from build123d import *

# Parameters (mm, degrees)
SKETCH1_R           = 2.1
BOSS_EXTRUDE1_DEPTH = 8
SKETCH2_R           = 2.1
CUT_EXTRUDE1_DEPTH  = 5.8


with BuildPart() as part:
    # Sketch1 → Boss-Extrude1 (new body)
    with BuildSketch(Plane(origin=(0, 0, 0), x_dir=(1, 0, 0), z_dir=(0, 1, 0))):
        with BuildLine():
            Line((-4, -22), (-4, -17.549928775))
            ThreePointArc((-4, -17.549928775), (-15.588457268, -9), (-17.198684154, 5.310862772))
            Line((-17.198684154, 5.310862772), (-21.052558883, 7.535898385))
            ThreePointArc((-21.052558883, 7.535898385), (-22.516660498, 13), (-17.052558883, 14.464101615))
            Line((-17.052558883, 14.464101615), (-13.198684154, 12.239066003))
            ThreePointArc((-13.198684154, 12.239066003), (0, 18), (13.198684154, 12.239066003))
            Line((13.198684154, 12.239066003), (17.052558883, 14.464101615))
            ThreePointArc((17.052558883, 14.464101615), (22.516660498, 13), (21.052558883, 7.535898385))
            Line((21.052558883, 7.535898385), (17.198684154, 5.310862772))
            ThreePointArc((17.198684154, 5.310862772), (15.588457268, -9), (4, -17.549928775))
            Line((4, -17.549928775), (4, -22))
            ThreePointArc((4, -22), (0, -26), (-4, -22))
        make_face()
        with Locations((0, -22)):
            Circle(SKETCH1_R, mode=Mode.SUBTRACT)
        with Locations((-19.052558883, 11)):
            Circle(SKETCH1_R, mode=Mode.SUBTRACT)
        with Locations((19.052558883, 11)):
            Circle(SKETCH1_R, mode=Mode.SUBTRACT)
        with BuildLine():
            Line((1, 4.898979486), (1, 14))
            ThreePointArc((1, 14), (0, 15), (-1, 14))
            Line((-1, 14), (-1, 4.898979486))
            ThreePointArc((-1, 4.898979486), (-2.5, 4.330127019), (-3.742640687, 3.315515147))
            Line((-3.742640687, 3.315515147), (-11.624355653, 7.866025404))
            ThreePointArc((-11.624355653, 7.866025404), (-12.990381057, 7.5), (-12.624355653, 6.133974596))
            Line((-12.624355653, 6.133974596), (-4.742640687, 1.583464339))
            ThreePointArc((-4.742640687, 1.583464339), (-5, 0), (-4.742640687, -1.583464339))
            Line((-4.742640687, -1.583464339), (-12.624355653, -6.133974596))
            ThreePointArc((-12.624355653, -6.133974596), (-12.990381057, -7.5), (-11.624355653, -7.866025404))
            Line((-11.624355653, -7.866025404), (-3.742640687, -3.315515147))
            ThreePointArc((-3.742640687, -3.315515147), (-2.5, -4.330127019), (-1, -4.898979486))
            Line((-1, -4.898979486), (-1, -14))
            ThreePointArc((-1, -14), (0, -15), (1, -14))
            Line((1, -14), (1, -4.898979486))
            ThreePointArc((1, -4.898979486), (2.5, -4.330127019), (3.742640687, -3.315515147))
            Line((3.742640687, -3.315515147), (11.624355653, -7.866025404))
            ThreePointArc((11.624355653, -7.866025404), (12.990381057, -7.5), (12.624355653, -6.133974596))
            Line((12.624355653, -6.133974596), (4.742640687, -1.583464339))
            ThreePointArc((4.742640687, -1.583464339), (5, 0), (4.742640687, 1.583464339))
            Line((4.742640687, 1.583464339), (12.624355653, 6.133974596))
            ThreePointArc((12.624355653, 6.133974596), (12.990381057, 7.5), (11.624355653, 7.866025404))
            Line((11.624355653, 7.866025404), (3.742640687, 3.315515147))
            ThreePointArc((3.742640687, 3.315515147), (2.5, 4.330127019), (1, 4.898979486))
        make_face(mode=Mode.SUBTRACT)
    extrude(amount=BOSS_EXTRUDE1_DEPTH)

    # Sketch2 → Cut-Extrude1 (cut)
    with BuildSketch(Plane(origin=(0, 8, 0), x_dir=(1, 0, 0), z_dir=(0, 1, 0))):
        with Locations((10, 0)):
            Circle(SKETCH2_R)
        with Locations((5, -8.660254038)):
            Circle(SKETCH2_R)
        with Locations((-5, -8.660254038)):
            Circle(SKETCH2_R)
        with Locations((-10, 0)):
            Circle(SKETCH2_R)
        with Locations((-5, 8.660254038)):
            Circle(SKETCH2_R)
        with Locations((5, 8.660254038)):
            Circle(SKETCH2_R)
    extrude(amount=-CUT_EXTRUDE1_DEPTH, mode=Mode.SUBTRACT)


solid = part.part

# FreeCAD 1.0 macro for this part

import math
import FreeCAD as App
import Part
import Sketcher

V = App.Vector
Q = App.Units.Quantity

doc = App.newDocument("Part")
body = doc.addObject("PartDesign::Body", "Body")

# Sketch on XZ plane
sketch1 = body.newObject("Sketcher::SketchObject", "Sketch")
sketch1.AttachmentSupport = (doc.getObject("XZ_Plane"), [""])
sketch1.MapMode = "FlatFace"
sketch1.addGeometry(Part.LineSegment(V(-4, 17.5, 0), V(-4, 22, 0)), False)
sketch1.addGeometry(Part.ArcOfCircle(Part.Circle(V(0, 22, 0), V(0, 0, 1), 4), math.radians(0), math.radians(180)), False)
sketch1.addGeometry(Part.LineSegment(V(4, 22, 0), V(4, 17.5, 0)), False)
sketch1.addGeometry(Part.ArcOfCircle(Part.Circle(V(0, 0, 0), V(0, 0, 1), 18), math.radians(-17), math.radians(77)), False)
sketch1.addGeometry(Part.LineSegment(V(17.2, -5.3, 0), V(21.1, -7.5, 0)), False)
sketch1.addGeometry(Part.ArcOfCircle(Part.Circle(V(19.1, -11, 0), V(0, 0, 1), 4), math.radians(-120), math.radians(60)), False)
sketch1.addGeometry(Part.LineSegment(V(17.1, -14.5, 0), V(13.2, -12.2, 0)), False)
sketch1.addGeometry(Part.ArcOfCircle(Part.Circle(V(0, 0, 0), V(0, 0, 1), 18), math.radians(-137), math.radians(-43)), False)
sketch1.addGeometry(Part.LineSegment(V(-13.2, -12.2, 0), V(-17.1, -14.5, 0)), False)
sketch1.addGeometry(Part.ArcOfCircle(Part.Circle(V(-19.1, -11, 0), V(0, 0, 1), 4), math.radians(120), math.radians(300)), False)
sketch1.addGeometry(Part.LineSegment(V(-21.1, -7.5, 0), V(-17.2, -5.3, 0)), False)
sketch1.addGeometry(Part.ArcOfCircle(Part.Circle(V(0, 0, 0), V(0, 0, 1), 18), math.radians(103), math.radians(197)), False)
sketch1.addGeometry(Part.Circle(V(0, 22, 0), V(0, 0, 1), 2.1), False)
sketch1.addGeometry(Part.Circle(V(19.1, -11, 0), V(0, 0, 1), 2.1), False)
sketch1.addGeometry(Part.ArcOfCircle(Part.Circle(V(0, 0, 0), V(0, 0, 1), 5), math.radians(-78), math.radians(-42)), False)
sketch1.addGeometry(Part.LineSegment(V(3.7, -3.3, 0), V(11.6, -7.9, 0)), False)
sketch1.addGeometry(Part.ArcOfCircle(Part.Circle(V(12.1, -7, 0), V(0, 0, 1), 1), math.radians(-120), math.radians(60)), False)
sketch1.addGeometry(Part.LineSegment(V(12.6, -6.1, 0), V(4.7, -1.6, 0)), False)
sketch1.addGeometry(Part.ArcOfCircle(Part.Circle(V(0, 0, 0), V(0, 0, 1), 5), math.radians(-18), math.radians(18)), False)
sketch1.addGeometry(Part.LineSegment(V(4.7, 1.6, 0), V(12.6, 6.1, 0)), False)
sketch1.addGeometry(Part.ArcOfCircle(Part.Circle(V(12.1, 7, 0), V(0, 0, 1), 1), math.radians(-60), math.radians(120)), False)
sketch1.addGeometry(Part.LineSegment(V(11.6, 7.9, 0), V(3.7, 3.3, 0)), False)
sketch1.addGeometry(Part.ArcOfCircle(Part.Circle(V(0, 0, 0), V(0, 0, 1), 5), math.radians(42), math.radians(78)), False)
sketch1.addGeometry(Part.LineSegment(V(1, 4.9, 0), V(1, 14, 0)), False)
sketch1.addGeometry(Part.ArcOfCircle(Part.Circle(V(0, 14, 0), V(0, 0, 1), 1), math.radians(0), math.radians(180)), False)
sketch1.addGeometry(Part.LineSegment(V(-1, 14, 0), V(-1, 4.9, 0)), False)
sketch1.addGeometry(Part.ArcOfCircle(Part.Circle(V(0, 0, 0), V(0, 0, 1), 5), math.radians(102), math.radians(138)), False)
sketch1.addGeometry(Part.LineSegment(V(-3.7, 3.3, 0), V(-11.6, 7.9, 0)), False)
sketch1.addGeometry(Part.ArcOfCircle(Part.Circle(V(-12.1, 7, 0), V(0, 0, 1), 1), math.radians(60), math.radians(240)), False)
sketch1.addGeometry(Part.LineSegment(V(-12.6, 6.1, 0), V(-4.7, 1.6, 0)), False)
sketch1.addGeometry(Part.ArcOfCircle(Part.Circle(V(0, 0, 0), V(0, 0, 1), 5), math.radians(162), math.radians(198)), False)
sketch1.addGeometry(Part.LineSegment(V(-4.7, -1.6, 0), V(-12.6, -6.1, 0)), False)
sketch1.addGeometry(Part.ArcOfCircle(Part.Circle(V(-12.1, -7, 0), V(0, 0, 1), 1), math.radians(120), math.radians(300)), False)
sketch1.addGeometry(Part.LineSegment(V(-11.6, -7.9, 0), V(-3.7, -3.3, 0)), False)
sketch1.addGeometry(Part.ArcOfCircle(Part.Circle(V(0, 0, 0), V(0, 0, 1), 5), math.radians(-138), math.radians(-102)), False)
sketch1.addGeometry(Part.LineSegment(V(-1, -4.9, 0), V(-1, -14, 0)), False)
sketch1.addGeometry(Part.ArcOfCircle(Part.Circle(V(0, -14, 0), V(0, 0, 1), 1), math.radians(180), math.radians(360)), False)
sketch1.addGeometry(Part.LineSegment(V(1, -14, 0), V(1, -4.9, 0)), False)
sketch1.addGeometry(Part.Circle(V(-19.1, -11, 0), V(0, 0, 1), 2.1), False)
sketch1.addConstraint(Sketcher.Constraint("Tangent", 0, 2, 1, 2))
sketch1.addConstraint(Sketcher.Constraint("Tangent", 1, 1, 2, 1))
sketch1.addConstraint(Sketcher.Constraint("Coincident", 2, 2, 3, 2))
sketch1.addConstraint(Sketcher.Constraint("Coincident", 3, 1, 4, 1))
sketch1.addConstraint(Sketcher.Constraint("Tangent", 4, 2, 5, 2))
sketch1.addConstraint(Sketcher.Constraint("Tangent", 5, 1, 6, 1))
sketch1.addConstraint(Sketcher.Constraint("Coincident", 6, 2, 7, 2))
sketch1.addConstraint(Sketcher.Constraint("Coincident", 7, 1, 8, 1))
sketch1.addConstraint(Sketcher.Constraint("Tangent", 8, 2, 9, 2))
sketch1.addConstraint(Sketcher.Constraint("Tangent", 9, 1, 10, 1))
sketch1.addConstraint(Sketcher.Constraint("Coincident", 10, 2, 11, 2))
sketch1.addConstraint(Sketcher.Constraint("Coincident", 11, 1, 0, 1))
sketch1.addConstraint(Sketcher.Constraint("Coincident", 14, 2, 15, 1))
sketch1.addConstraint(Sketcher.Constraint("Tangent", 15, 2, 16, 1))
sketch1.addConstraint(Sketcher.Constraint("Tangent", 16, 2, 17, 1))
sketch1.addConstraint(Sketcher.Constraint("Coincident", 17, 2, 18, 1))
sketch1.addConstraint(Sketcher.Constraint("Coincident", 18, 2, 19, 1))
sketch1.addConstraint(Sketcher.Constraint("Tangent", 19, 2, 20, 1))
sketch1.addConstraint(Sketcher.Constraint("Tangent", 20, 2, 21, 1))
sketch1.addConstraint(Sketcher.Constraint("Coincident", 21, 2, 22, 1))
sketch1.addConstraint(Sketcher.Constraint("Coincident", 22, 2, 23, 1))
sketch1.addConstraint(Sketcher.Constraint("Tangent", 23, 2, 24, 1))
sketch1.addConstraint(Sketcher.Constraint("Tangent", 24, 2, 25, 1))
sketch1.addConstraint(Sketcher.Constraint("Coincident", 25, 2, 26, 1))
sketch1.addConstraint(Sketcher.Constraint("Coincident", 26, 2, 27, 1))
sketch1.addConstraint(Sketcher.Constraint("Tangent", 27, 2, 28, 1))
sketch1.addConstraint(Sketcher.Constraint("Tangent", 28, 2, 29, 1))
sketch1.addConstraint(Sketcher.Constraint("Coincident", 29, 2, 30, 1))
sketch1.addConstraint(Sketcher.Constraint("Coincident", 30, 2, 31, 1))
sketch1.addConstraint(Sketcher.Constraint("Tangent", 31, 2, 32, 1))
sketch1.addConstraint(Sketcher.Constraint("Tangent", 32, 2, 33, 1))
sketch1.addConstraint(Sketcher.Constraint("Coincident", 33, 2, 34, 1))
sketch1.addConstraint(Sketcher.Constraint("Coincident", 34, 2, 35, 1))
sketch1.addConstraint(Sketcher.Constraint("Tangent", 35, 2, 36, 1))
sketch1.addConstraint(Sketcher.Constraint("Tangent", 36, 2, 37, 1))
sketch1.addConstraint(Sketcher.Constraint("Coincident", 37, 2, 14, 1))
sketch1.addConstraint(Sketcher.Constraint("Vertical", 0))
sketch1.addConstraint(Sketcher.Constraint("Vertical", 2))
sketch1.addConstraint(Sketcher.Constraint("Vertical", 23))
sketch1.addConstraint(Sketcher.Constraint("Vertical", 25))
sketch1.addConstraint(Sketcher.Constraint("Vertical", 35))
sketch1.addConstraint(Sketcher.Constraint("Vertical", 37))
sketch1.addConstraint(Sketcher.Constraint("Coincident", 3, 3, -1, 1))
sketch1.addConstraint(Sketcher.Constraint("Coincident", 7, 3, -1, 1))
sketch1.addConstraint(Sketcher.Constraint("Coincident", 11, 3, -1, 1))
sketch1.addConstraint(Sketcher.Constraint("Coincident", 14, 3, -1, 1))
sketch1.addConstraint(Sketcher.Constraint("Coincident", 18, 3, -1, 1))
sketch1.addConstraint(Sketcher.Constraint("Coincident", 22, 3, -1, 1))
sketch1.addConstraint(Sketcher.Constraint("Coincident", 26, 3, -1, 1))
sketch1.addConstraint(Sketcher.Constraint("Coincident", 30, 3, -1, 1))
sketch1.addConstraint(Sketcher.Constraint("Coincident", 34, 3, -1, 1))
sketch1.addConstraint(Sketcher.Constraint("Coincident", 12, 3, 1, 3))
sketch1.addConstraint(Sketcher.Constraint("Coincident", 13, 3, 5, 3))
sketch1.addConstraint(Sketcher.Constraint("Coincident", 38, 3, 9, 3))
sketch1.addConstraint(Sketcher.Constraint("Equal", 1, 5))
sketch1.addConstraint(Sketcher.Constraint("Equal", 3, 7))
sketch1.addConstraint(Sketcher.Constraint("Equal", 5, 9))
sketch1.addConstraint(Sketcher.Constraint("Equal", 7, 11))
sketch1.addConstraint(Sketcher.Constraint("Equal", 12, 13))
sketch1.addConstraint(Sketcher.Constraint("Equal", 14, 18))
sketch1.addConstraint(Sketcher.Constraint("Equal", 16, 20))
sketch1.addConstraint(Sketcher.Constraint("Equal", 18, 22))
sketch1.addConstraint(Sketcher.Constraint("Equal", 20, 24))
sketch1.addConstraint(Sketcher.Constraint("Equal", 22, 26))
sketch1.addConstraint(Sketcher.Constraint("Equal", 24, 28))
sketch1.addConstraint(Sketcher.Constraint("Equal", 26, 30))
sketch1.addConstraint(Sketcher.Constraint("Equal", 28, 32))
sketch1.addConstraint(Sketcher.Constraint("Equal", 30, 34))
sketch1.addConstraint(Sketcher.Constraint("Equal", 32, 36))
sketch1.addConstraint(Sketcher.Constraint("Equal", 13, 38))
sketch1.addConstraint(Sketcher.Constraint("Symmetric", 16, 3, 28, 3, -1, 1))
sketch1.addConstraint(Sketcher.Constraint("Symmetric", 20, 3, 32, 3, -1, 1))
sketch1.addConstraint(Sketcher.Constraint("Symmetric", 24, 3, 36, 3, -1, 1))
sketch1.addConstraint(Sketcher.Constraint("Symmetric", 5, 3, 9, 3, -2))
sketch1.addConstraint(Sketcher.Constraint("Symmetric", 20, 3, 28, 3, -2))
sketch1.addConstraint(Sketcher.Constraint("PointOnObject", 1, 3, -2))
sketch1.addConstraint(Sketcher.Constraint("PointOnObject", 24, 3, -2))
sketch1.addConstraint(Sketcher.Constraint("Parallel", 4, 6))
sketch1.addConstraint(Sketcher.Constraint("Parallel", 8, 10))
sketch1.addConstraint(Sketcher.Constraint("Parallel", 6, 15))
sketch1.addConstraint(Sketcher.Constraint("Parallel", 15, 17))
sketch1.addConstraint(Sketcher.Constraint("Parallel", 10, 19))
sketch1.addConstraint(Sketcher.Constraint("Parallel", 19, 21))
sketch1.addConstraint(Sketcher.Constraint("Parallel", 17, 27))
sketch1.addConstraint(Sketcher.Constraint("Parallel", 27, 29))
sketch1.addConstraint(Sketcher.Constraint("Parallel", 21, 31))
sketch1.addConstraint(Sketcher.Constraint("Parallel", 31, 33))
sketch1.addConstraint(Sketcher.Constraint("Horizontal", 6, 2, 7, 1))
sketch1.addConstraint(Sketcher.Constraint("Equal", 4, 6))
sketch1.addConstraint(Sketcher.Constraint("Equal", 15, 17))
sketch1.addConstraint(Sketcher.Constraint("Radius", 1, 4.0))
sketch1.addConstraint(Sketcher.Constraint("Radius", 3, 18.0))
sketch1.addConstraint(Sketcher.Constraint("Radius", 14, 5.0))
sketch1.addConstraint(Sketcher.Constraint("Radius", 16, 1.0))
sketch1.addConstraint(Sketcher.Constraint("Diameter", 12, 4.2))
sketch1.addConstraint(Sketcher.Constraint("Angle", 4, Q("-30 deg")))
sketch1.addConstraint(Sketcher.Constraint("DistanceY", -1, 1, 1, 3, 22.0))
sketch1.addConstraint(Sketcher.Constraint("DistanceY", 5, 3, -1, 1, 11.0))
sketch1.addConstraint(Sketcher.Constraint("DistanceY", 16, 3, -1, 1, 7.0))
sketch1.addConstraint(Sketcher.Constraint("DistanceY", -1, 1, 24, 3, 14.0))
pad1 = body.newObject("PartDesign::Pad", "Pad")
pad1.Profile = sketch1
pad1.Length = 8
pad1.Reversed = True

# Sketch on XZ plane
sketch2 = body.newObject("Sketcher::SketchObject", "Sketch001")
sketch2.AttachmentSupport = (doc.getObject("XZ_Plane"), [""])
sketch2.MapMode = "FlatFace"
sketch2.AttachmentOffset = App.Placement(V(0, 0, -8), App.Rotation())
sketch2.addGeometry(Part.Circle(V(10, 0, 0), V(0, 0, 1), 2.1), False)
sketch2.addGeometry(Part.Circle(V(5, 8.7, 0), V(0, 0, 1), 2.1), False)
sketch2.addGeometry(Part.Circle(V(-5, 8.7, 0), V(0, 0, 1), 2.1), False)
sketch2.addGeometry(Part.Circle(V(-10, 0, 0), V(0, 0, 1), 2.1), False)
sketch2.addGeometry(Part.Circle(V(-5, -8.7, 0), V(0, 0, 1), 2.1), False)
sketch2.addGeometry(Part.Circle(V(5, -8.7, 0), V(0, 0, 1), 2.1), False)
sketch2.addConstraint(Sketcher.Constraint("Equal", 0, 1))
sketch2.addConstraint(Sketcher.Constraint("Equal", 1, 2))
sketch2.addConstraint(Sketcher.Constraint("Equal", 2, 3))
sketch2.addConstraint(Sketcher.Constraint("Equal", 3, 4))
sketch2.addConstraint(Sketcher.Constraint("Equal", 4, 5))
sketch2.addConstraint(Sketcher.Constraint("Symmetric", 0, 3, 3, 3, -1, 1))
sketch2.addConstraint(Sketcher.Constraint("Symmetric", 1, 3, 4, 3, -1, 1))
sketch2.addConstraint(Sketcher.Constraint("Symmetric", 2, 3, 5, 3, -1, 1))
sketch2.addConstraint(Sketcher.Constraint("Symmetric", 1, 3, 2, 3, -2))
sketch2.addConstraint(Sketcher.Constraint("PointOnObject", 0, 3, -1))
sketch2.addConstraint(Sketcher.Constraint("Diameter", 0, 4.2))
sketch2.addConstraint(Sketcher.Constraint("DistanceX", -1, 1, 0, 3, 10.0))
sketch2.addConstraint(Sketcher.Constraint("DistanceX", -1, 1, 1, 3, 5.0))
sketch2.addConstraint(Sketcher.Constraint("DistanceY", 4, 3, 2, 3, 17.320508))
pocket1 = body.newObject("PartDesign::Pocket", "Pocket")
pocket1.Profile = sketch2
pocket1.Length = 5.8
pocket1.Reversed = True

doc.recompute()
